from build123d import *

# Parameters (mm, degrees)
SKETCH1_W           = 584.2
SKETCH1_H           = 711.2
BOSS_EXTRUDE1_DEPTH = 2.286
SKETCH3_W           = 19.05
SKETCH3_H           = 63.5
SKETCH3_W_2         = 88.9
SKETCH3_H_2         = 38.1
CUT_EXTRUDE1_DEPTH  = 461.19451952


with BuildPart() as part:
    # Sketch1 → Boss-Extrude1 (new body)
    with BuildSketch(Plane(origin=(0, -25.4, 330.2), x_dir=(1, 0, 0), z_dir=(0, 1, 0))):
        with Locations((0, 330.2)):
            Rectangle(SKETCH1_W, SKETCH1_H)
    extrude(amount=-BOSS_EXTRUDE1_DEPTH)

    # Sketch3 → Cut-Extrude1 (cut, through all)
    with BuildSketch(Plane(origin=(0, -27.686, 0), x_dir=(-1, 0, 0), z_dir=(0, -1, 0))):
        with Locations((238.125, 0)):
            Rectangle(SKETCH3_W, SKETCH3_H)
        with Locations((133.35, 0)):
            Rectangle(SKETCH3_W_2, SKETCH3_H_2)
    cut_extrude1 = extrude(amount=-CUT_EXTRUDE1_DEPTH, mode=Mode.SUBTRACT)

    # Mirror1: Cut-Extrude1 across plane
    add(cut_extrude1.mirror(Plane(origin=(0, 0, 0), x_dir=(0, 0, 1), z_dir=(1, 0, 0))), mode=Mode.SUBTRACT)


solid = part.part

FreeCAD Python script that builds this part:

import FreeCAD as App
import Part
import Sketcher

V = App.Vector
Q = App.Units.Quantity


def add_polygon(sketch, points):
    """Adds a closed chain of lines whose ends are joined by coincident constraints."""
    first, n = sketch.GeometryCount, len(points)
    for a, b in zip(points, points[1:] + points[:1]):
        sketch.addGeometry(Part.LineSegment(App.Vector(*a, 0), App.Vector(*b, 0)), False)
    for i in range(n):
        sketch.addConstraint(Sketcher.Constraint("Coincident", first + i, 2, first + (i + 1) % n, 1))

doc = App.newDocument("Part")
body = doc.addObject("PartDesign::Body", "Body")

sketch1 = doc.addObject("Sketcher::SketchObject", "Sketch")
body.addObject(sketch1)
sketch1.AttachmentSupport = (doc.XZ_Plane, [""])
sketch1.MapMode = "FlatFace"
sketch1.AttachmentOffset = App.Placement(V(0, 0, 1 * 25.4), App.Rotation())
add_polygon(sketch1, [(-292.1, -355.6), (-292.1, 355.6), (292.1, 355.6), (292.1, -355.6)])
sketch1.addConstraint([
    Sketcher.Constraint("Vertical", 0),
    Sketcher.Constraint("Horizontal", 1),
    Sketcher.Constraint("Vertical", 2),
    Sketcher.Constraint("Horizontal", 3),
    Sketcher.Constraint("Symmetric", 0, 2, 2, 2, -1, 1),
    Sketcher.Constraint("DistanceX", 1, 1, 1, 2, Q("23 in")),
    Sketcher.Constraint("DistanceY", 0, 1, 0, 2, Q("28 in")),
])
pad1 = doc.addObject("PartDesign::Pad", "Pad")
body.addObject(pad1)
pad1.Profile = sketch1
pad1.Length = Q("0.09 in")

sketch2 = doc.addObject("Sketcher::SketchObject", "Sketch001")
body.addObject(sketch2)
sketch2.AttachmentSupport = (doc.XZ_Plane, [""])
sketch2.MapMode = "FlatFace"
sketch2.AttachmentOffset = App.Placement(V(0, 0, 1.09 * 25.4), App.Rotation())
add_polygon(sketch2, [(-228.6, -31.75), (-228.6, 31.75), (-247.65, 31.75), (-247.65, -31.75)])
add_polygon(sketch2, [(-88.9, -19.05), (-88.9, 19.05), (-177.8, 19.05), (-177.8, -19.05)])
sketch2.addConstraint([
    Sketcher.Constraint("Vertical", 0),
    Sketcher.Constraint("Horizontal", 1),
    Sketcher.Constraint("Vertical", 2),
    Sketcher.Constraint("Horizontal", 3),
    Sketcher.Constraint("Vertical", 4),
    Sketcher.Constraint("Horizontal", 5),
    Sketcher.Constraint("Vertical", 6),
    Sketcher.Constraint("Horizontal", 7),
    Sketcher.Constraint("DistanceX", 5, 2, 5, 1, Q("3.5 in")),
    Sketcher.Constraint("DistanceY", 0, 1, 0, 2, Q("2.5 in")),
    Sketcher.Constraint("DistanceY", 4, 1, 4, 2, Q("1.5 in")),
    Sketcher.Constraint("DistanceX", 0, 2, -1, 1, Q("9 in")),
    Sketcher.Constraint("DistanceX", 5, 2, -1, 1, Q("7 in")),
    Sketcher.Constraint("DistanceY", 3, 2, 4, 2, Q("2 in")),
    Sketcher.Constraint("DistanceX", 1, 2, 1, 1, Q("0.75 in")),
    Sketcher.Constraint("DistanceY", -1, 1, 0, 2, Q("1.25 in")),
])
pocket1 = doc.addObject("PartDesign::Pocket", "Pocket")
body.addObject(pocket1)
pocket1.Profile = sketch2
pocket1.Type = "ThroughAll"
doc.recompute()

mirrored = doc.addObject("PartDesign::Mirrored", "Mirrored")
body.addObject(mirrored)
mirrored.Originals = [pocket1]
mirrored.MirrorPlane = (doc.YZ_Plane, [""])
body.Tip = mirrored

doc.recompute()
